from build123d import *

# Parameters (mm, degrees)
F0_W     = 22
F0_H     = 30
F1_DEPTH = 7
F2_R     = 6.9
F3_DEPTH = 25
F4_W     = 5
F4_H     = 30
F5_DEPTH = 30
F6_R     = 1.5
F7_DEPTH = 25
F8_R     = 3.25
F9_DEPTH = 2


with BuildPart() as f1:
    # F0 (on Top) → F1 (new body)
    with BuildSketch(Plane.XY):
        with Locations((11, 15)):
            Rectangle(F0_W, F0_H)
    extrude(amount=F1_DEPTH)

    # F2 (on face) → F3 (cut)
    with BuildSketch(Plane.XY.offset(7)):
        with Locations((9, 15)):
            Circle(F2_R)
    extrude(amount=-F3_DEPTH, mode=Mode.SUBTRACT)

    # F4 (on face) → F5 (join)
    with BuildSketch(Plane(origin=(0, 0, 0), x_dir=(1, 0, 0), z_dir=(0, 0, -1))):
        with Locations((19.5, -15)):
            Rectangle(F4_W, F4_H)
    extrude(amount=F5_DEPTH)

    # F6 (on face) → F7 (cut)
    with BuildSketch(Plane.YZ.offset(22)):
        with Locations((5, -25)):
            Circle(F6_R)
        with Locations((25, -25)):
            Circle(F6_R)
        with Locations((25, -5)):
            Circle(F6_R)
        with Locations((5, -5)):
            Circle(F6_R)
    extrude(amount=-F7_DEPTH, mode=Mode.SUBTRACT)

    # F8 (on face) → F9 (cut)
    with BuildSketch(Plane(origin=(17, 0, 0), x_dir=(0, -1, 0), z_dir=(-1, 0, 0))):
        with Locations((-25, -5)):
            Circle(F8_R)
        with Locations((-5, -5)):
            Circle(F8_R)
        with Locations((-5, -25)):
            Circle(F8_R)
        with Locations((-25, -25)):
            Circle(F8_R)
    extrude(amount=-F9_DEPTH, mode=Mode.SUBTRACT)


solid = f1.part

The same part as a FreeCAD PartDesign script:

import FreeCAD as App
import Part
import Sketcher
from FreeCAD import Vector
Q = App.Units.Quantity


def add_polygon(sketch, points):
    """Adds a closed chain of lines whose ends are joined by coincident constraints."""
    first, n = sketch.GeometryCount, len(points)
    for a, b in zip(points, points[1:] + points[:1]):
        sketch.addGeometry(Part.LineSegment(App.Vector(*a, 0), App.Vector(*b, 0)), False)
    for i in range(n):
        sketch.addConstraint(Sketcher.Constraint("Coincident", first + i, 2, first + (i + 1) % n, 1))

doc = App.newDocument("Part")
body = doc.addObject("PartDesign::Body", "Body")

# Sketch on XY plane
sketch1 = body.newObject("Sketcher::SketchObject", "Sketch")
sketch1.AttachmentSupport = (doc.getObject("XY_Plane"), [""])
sketch1.MapMode = "FlatFace"
add_polygon(sketch1, [(0, 30), (0, 0), (22, 0), (22, 30)])  # lines 0-3
sketch1.addConstraint([
    Sketcher.Constraint("Vertical", 0),
    Sketcher.Constraint("Horizontal", 1),
    Sketcher.Constraint("Vertical", 2),
    Sketcher.Constraint("Horizontal", 3),
    Sketcher.Constraint("Coincident", 0, 2, -1, 1),
    Sketcher.Constraint("DistanceX", 1, 1, 1, 2, Q("22 mm")),
    Sketcher.Constraint("DistanceY", 0, 2, 0, 1, Q("30 mm")),
])
pad1 = body.newObject("PartDesign::Pad", "Pad")
pad1.Profile = sketch1
pad1.Length = 7

# Sketch on XY plane
sketch2 = body.newObject("Sketcher::SketchObject", "Sketch001")
sketch2.AttachmentSupport = (doc.getObject("XY_Plane"), [""])
sketch2.MapMode = "FlatFace"
sketch2.AttachmentOffset = App.Placement(Vector(0, 0, 7), App.Rotation())
sketch2.addGeometry(Part.Circle(Vector(9, 15, 0), Vector(0, 0, 1), 7), False)
sketch2.addConstraint([
    Sketcher.Constraint("Diameter", 0, Q("13.8 mm")),
    Sketcher.Constraint("DistanceX", -1, 1, 0, 3, Q("9 mm")),
    Sketcher.Constraint("DistanceY", -1, 1, 0, 3, Q("15 mm")),
])
pocket1 = body.newObject("PartDesign::Pocket", "Pocket")
pocket1.Profile = sketch2
pocket1.Length = 25

# Sketch on XY plane
sketch3 = body.newObject("Sketcher::SketchObject", "Sketch002")
sketch3.AttachmentSupport = (doc.getObject("XY_Plane"), [""])
sketch3.MapMode = "FlatFace"
add_polygon(sketch3, [(17, 0), (17, 30), (22, 30), (22, 0)])  # lines 0-3
sketch3.addConstraint([
    Sketcher.Constraint("Vertical", 0),
    Sketcher.Constraint("Horizontal", 1),
    Sketcher.Constraint("Vertical", 2),
    Sketcher.Constraint("Horizontal", 3),
    Sketcher.Constraint("PointOnObject", 2, 2, -1),
    Sketcher.Constraint("DistanceX", 1, 1, 1, 2, Q("5 mm")),
    Sketcher.Constraint("DistanceY", 0, 1, 0, 2, Q("30 mm")),
    Sketcher.Constraint("DistanceX", -1, 1, 0, 2, Q("17 mm")),
])
pad2 = body.newObject("PartDesign::Pad", "Pad001")
pad2.Profile = sketch3
pad2.Length = 30
pad2.Reversed = True

# Sketch on YZ plane
sketch4 = body.newObject("Sketcher::SketchObject", "Sketch003")
sketch4.AttachmentSupport = (doc.getObject("YZ_Plane"), [""])
sketch4.MapMode = "FlatFace"
sketch4.AttachmentOffset = App.Placement(Vector(0, 0, 22), App.Rotation())
sketch4.addGeometry([
    Part.Circle(Vector(5, -25, 0), Vector(0, 0, 1), 1.5),
    Part.Circle(Vector(25, -25, 0), Vector(0, 0, 1), 1.5),
    Part.Circle(Vector(25, -5, 0), Vector(0, 0, 1), 1.5),
    Part.Circle(Vector(5, -5, 0), Vector(0, 0, 1), 1.5),
], False)
sketch4.addConstraint([
    Sketcher.Constraint("Equal", 0, 1),
    Sketcher.Constraint("Equal", 1, 2),
    Sketcher.Constraint("Equal", 2, 3),
    Sketcher.Constraint("Horizontal", 0, 3, 1, 3),
    Sketcher.Constraint("Horizontal", 2, 3, 3, 3),
    Sketcher.Constraint("Vertical", 1, 3, 2, 3),
    Sketcher.Constraint("Vertical", 0, 3, 3, 3),
    Sketcher.Constraint("Diameter", 0, Q("3 mm")),
    Sketcher.Constraint("DistanceX", -1, 1, 0, 3, Q("5 mm")),
    Sketcher.Constraint("DistanceY", 0, 3, -1, 1, Q("25 mm")),
    Sketcher.Constraint("DistanceX", -1, 1, 1, 3, Q("25 mm")),
    Sketcher.Constraint("DistanceY", 2, 3, -1, 1, Q("5 mm")),
])
pocket2 = body.newObject("PartDesign::Pocket", "Pocket001")
pocket2.Profile = sketch4
pocket2.Length = 25

# Sketch on YZ plane
sketch5 = body.newObject("Sketcher::SketchObject", "Sketch004")
sketch5.AttachmentSupport = (doc.getObject("YZ_Plane"), [""])
sketch5.MapMode = "FlatFace"
sketch5.AttachmentOffset = App.Placement(Vector(0, 0, 17), App.Rotation())
sketch5.addGeometry([
    Part.Circle(Vector(25, -5, 0), Vector(0, 0, 1), 3.2),
    Part.Circle(Vector(5, -5, 0), Vector(0, 0, 1), 3.2),
    Part.Circle(Vector(5, -25, 0), Vector(0, 0, 1), 3.2),
    Part.Circle(Vector(25, -25, 0), Vector(0, 0, 1), 3.2),
], False)
sketch5.addConstraint([
    Sketcher.Constraint("Equal", 0, 1),
    Sketcher.Constraint("Equal", 1, 2),
    Sketcher.Constraint("Equal", 2, 3),
    Sketcher.Constraint("Horizontal", 0, 3, 1, 3),
    Sketcher.Constraint("Horizontal", 2, 3, 3, 3),
    Sketcher.Constraint("Vertical", 1, 3, 2, 3),
    Sketcher.Constraint("Vertical", 0, 3, 3, 3),
    Sketcher.Constraint("Diameter", 0, Q("6.5 mm")),
    Sketcher.Constraint("DistanceX", -1, 1, 0, 3, Q("25 mm")),
    Sketcher.Constraint("DistanceY", 0, 3, -1, 1, Q("5 mm")),
    Sketcher.Constraint("DistanceX", -1, 1, 1, 3, Q("5 mm")),
    Sketcher.Constraint("DistanceY", 2, 3, -1, 1, Q("25 mm")),
])
pocket3 = body.newObject("PartDesign::Pocket", "Pocket002")
pocket3.Profile = sketch5
pocket3.Length = 2
pocket3.Reversed = True

doc.recompute()
